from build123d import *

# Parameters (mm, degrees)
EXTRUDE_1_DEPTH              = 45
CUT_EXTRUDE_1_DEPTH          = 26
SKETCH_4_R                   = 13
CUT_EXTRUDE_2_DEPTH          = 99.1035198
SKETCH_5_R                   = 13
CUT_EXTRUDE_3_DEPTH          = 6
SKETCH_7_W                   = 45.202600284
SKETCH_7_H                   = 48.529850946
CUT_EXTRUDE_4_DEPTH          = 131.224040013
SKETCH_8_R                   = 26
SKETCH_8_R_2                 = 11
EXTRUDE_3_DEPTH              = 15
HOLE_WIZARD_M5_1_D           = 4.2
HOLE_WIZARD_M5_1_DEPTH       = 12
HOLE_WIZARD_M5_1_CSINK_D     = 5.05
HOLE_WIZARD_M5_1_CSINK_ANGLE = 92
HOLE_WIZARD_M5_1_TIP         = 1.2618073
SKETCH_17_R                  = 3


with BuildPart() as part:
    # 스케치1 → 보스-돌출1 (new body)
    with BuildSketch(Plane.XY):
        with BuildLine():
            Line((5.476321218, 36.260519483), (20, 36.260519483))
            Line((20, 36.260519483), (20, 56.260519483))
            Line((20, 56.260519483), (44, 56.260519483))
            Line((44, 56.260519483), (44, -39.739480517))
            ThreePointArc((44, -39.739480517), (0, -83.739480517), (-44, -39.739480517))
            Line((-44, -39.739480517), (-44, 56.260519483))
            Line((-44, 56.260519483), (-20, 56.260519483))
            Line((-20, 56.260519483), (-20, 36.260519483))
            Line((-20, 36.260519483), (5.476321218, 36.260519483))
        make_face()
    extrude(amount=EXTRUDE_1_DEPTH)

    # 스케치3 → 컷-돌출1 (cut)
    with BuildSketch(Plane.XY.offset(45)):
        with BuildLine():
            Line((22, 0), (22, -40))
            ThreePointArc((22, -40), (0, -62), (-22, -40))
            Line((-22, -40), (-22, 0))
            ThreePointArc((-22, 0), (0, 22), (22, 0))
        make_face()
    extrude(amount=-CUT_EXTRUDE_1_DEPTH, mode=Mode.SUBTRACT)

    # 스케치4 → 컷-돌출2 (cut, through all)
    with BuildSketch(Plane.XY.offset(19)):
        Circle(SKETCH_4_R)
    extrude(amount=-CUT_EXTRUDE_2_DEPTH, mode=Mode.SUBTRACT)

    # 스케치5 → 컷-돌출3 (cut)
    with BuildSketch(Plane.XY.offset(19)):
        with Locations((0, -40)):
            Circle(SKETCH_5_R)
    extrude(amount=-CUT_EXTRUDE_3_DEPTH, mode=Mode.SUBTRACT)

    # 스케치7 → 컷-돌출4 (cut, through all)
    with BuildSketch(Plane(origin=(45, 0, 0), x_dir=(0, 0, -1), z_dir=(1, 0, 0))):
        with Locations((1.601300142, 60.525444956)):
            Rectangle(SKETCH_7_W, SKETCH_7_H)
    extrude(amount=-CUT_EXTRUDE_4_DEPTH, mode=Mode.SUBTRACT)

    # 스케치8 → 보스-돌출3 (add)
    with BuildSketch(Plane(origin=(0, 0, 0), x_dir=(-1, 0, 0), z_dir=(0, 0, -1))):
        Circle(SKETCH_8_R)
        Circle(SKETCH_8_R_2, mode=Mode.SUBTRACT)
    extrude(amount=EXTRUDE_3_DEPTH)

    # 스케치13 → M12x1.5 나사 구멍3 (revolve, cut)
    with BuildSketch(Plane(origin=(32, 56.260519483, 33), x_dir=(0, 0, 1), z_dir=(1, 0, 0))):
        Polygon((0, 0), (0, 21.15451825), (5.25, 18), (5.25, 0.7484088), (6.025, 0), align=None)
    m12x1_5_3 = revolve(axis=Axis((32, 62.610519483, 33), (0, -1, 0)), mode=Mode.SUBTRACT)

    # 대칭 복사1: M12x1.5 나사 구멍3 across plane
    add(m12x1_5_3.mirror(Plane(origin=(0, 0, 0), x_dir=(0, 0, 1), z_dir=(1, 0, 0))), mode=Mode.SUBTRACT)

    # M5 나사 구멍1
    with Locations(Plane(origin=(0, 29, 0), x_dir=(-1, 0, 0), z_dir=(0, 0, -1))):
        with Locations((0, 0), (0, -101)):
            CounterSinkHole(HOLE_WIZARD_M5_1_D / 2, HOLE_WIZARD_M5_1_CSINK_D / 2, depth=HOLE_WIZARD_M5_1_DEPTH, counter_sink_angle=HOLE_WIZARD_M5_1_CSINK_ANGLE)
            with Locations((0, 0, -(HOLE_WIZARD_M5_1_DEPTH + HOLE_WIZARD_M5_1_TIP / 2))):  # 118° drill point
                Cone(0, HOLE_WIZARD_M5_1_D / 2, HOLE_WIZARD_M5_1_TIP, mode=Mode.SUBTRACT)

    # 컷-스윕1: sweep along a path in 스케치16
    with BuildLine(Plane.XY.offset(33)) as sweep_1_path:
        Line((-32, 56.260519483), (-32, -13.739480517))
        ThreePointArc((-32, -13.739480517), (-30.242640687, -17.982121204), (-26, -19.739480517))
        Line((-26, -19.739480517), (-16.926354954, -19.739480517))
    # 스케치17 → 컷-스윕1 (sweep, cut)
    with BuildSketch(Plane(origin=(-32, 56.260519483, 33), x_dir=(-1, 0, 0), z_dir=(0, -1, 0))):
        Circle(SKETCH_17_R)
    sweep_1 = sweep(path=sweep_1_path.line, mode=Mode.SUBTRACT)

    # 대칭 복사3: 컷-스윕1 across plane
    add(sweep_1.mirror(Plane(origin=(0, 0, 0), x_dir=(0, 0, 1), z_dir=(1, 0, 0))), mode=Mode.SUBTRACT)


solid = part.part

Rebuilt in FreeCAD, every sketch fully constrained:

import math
import FreeCAD as App
import Part
import Sketcher

V = App.Vector
Q = App.Units.Quantity


def add_polygon(sketch, points):
    """Adds a closed chain of lines whose ends are joined by coincident constraints."""
    first, n = sketch.GeometryCount, len(points)
    for a, b in zip(points, points[1:] + points[:1]):
        sketch.addGeometry(Part.LineSegment(App.Vector(*a, 0), App.Vector(*b, 0)), False)
    for i in range(n):
        sketch.addConstraint(Sketcher.Constraint("Coincident", first + i, 2, first + (i + 1) % n, 1))

doc = App.newDocument("Part")
body = doc.addObject("PartDesign::Body", "Body")

sketch1 = body.newObject("Sketcher::SketchObject", "Sketch")
sketch1.AttachmentSupport = (doc.getObject("XY_Plane"), [""])
sketch1.MapMode = "FlatFace"
sketch1.addGeometry(Part.LineSegment(V(20, 56, 0), V(20, 36, 0)), False)
sketch1.addGeometry(Part.LineSegment(V(20, 36, 0), V(-20, 36, 0)), False)
sketch1.addGeometry(Part.LineSegment(V(-20, 36, 0), V(-20, 56, 0)), False)
sketch1.addGeometry(Part.LineSegment(V(-20, 56, 0), V(-44, 56, 0)), False)
sketch1.addGeometry(Part.LineSegment(V(-44, 56, 0), V(-44, -40, 0)), False)
sketch1.addGeometry(Part.ArcOfCircle(Part.Circle(V(0, -40, 0), V(0, 0, 1), 44), math.radians(180), math.radians(360)), False)
sketch1.addGeometry(Part.LineSegment(V(44, -40, 0), V(44, 56, 0)), False)
sketch1.addGeometry(Part.LineSegment(V(44, 56, 0), V(20, 56, 0)), False)
sketch1.addConstraint(Sketcher.Constraint("Coincident", 0, 2, 1, 1))
sketch1.addConstraint(Sketcher.Constraint("Coincident", 1, 2, 2, 1))
sketch1.addConstraint(Sketcher.Constraint("Coincident", 2, 2, 3, 1))
sketch1.addConstraint(Sketcher.Constraint("Coincident", 3, 2, 4, 1))
sketch1.addConstraint(Sketcher.Constraint("Tangent", 4, 2, 5, 1))
sketch1.addConstraint(Sketcher.Constraint("Tangent", 5, 2, 6, 1))
sketch1.addConstraint(Sketcher.Constraint("Coincident", 6, 2, 7, 1))
sketch1.addConstraint(Sketcher.Constraint("Coincident", 7, 2, 0, 1))
sketch1.addConstraint(Sketcher.Constraint("Vertical", 0))
sketch1.addConstraint(Sketcher.Constraint("Horizontal", 1))
sketch1.addConstraint(Sketcher.Constraint("Vertical", 2))
sketch1.addConstraint(Sketcher.Constraint("Horizontal", 3))
sketch1.addConstraint(Sketcher.Constraint("Vertical", 4))
sketch1.addConstraint(Sketcher.Constraint("Vertical", 6))
sketch1.addConstraint(Sketcher.Constraint("Horizontal", 7))
sketch1.addConstraint(Sketcher.Constraint("Symmetric", 3, 2, 6, 2, -2))
sketch1.addConstraint(Sketcher.Constraint("Equal", 3, 7))
sketch1.addConstraint(Sketcher.Constraint("Radius", 5, 44.0))
sketch1.addConstraint(Sketcher.Constraint("DistanceX", 1, 2, 1, 1, 40.0))
sketch1.addConstraint(Sketcher.Constraint("DistanceY", 0, 2, 0, 1, 20.0))
sketch1.addConstraint(Sketcher.Constraint("DistanceY", 4, 2, 4, 1, 96.0))
sketch1.addConstraint(Sketcher.Constraint("DistanceY", 5, 3, -1, 1, 39.739481))
pad1 = body.newObject("PartDesign::Pad", "Pad")
pad1.Profile = sketch1
pad1.Length = 45

sketch2 = body.newObject("Sketcher::SketchObject", "Sketch001")
sketch2.AttachmentSupport = (doc.getObject("XY_Plane"), [""])
sketch2.MapMode = "FlatFace"
sketch2.AttachmentOffset = App.Placement(V(0, 0, 45), App.Rotation())
sketch2.addGeometry(Part.LineSegment(V(22, -40, 0), V(22, 0, 0)), False)
sketch2.addGeometry(Part.ArcOfCircle(Part.Circle(V(0, 0, 0), V(0, 0, 1), 22), math.radians(0), math.radians(180)), False)
sketch2.addGeometry(Part.LineSegment(V(-22, 0, 0), V(-22, -40, 0)), False)
sketch2.addGeometry(Part.ArcOfCircle(Part.Circle(V(0, -40, 0), V(0, 0, 1), 22), math.radians(180), math.radians(360)), False)
sketch2.addConstraint(Sketcher.Constraint("Tangent", 0, 2, 1, 1))
sketch2.addConstraint(Sketcher.Constraint("Tangent", 1, 2, 2, 1))
sketch2.addConstraint(Sketcher.Constraint("Tangent", 2, 2, 3, 1))
sketch2.addConstraint(Sketcher.Constraint("Tangent", 3, 2, 0, 1))
sketch2.addConstraint(Sketcher.Constraint("Vertical", 0))
sketch2.addConstraint(Sketcher.Constraint("Vertical", 2))
sketch2.addConstraint(Sketcher.Constraint("Coincident", 1, 3, -1, 1))
sketch2.addConstraint(Sketcher.Constraint("Radius", 1, 22.0))
sketch2.addConstraint(Sketcher.Constraint("DistanceY", 0, 1, 0, 2, 40.0))
pocket1 = body.newObject("PartDesign::Pocket", "Pocket")
pocket1.Profile = sketch2
pocket1.Length = 26

sketch3 = body.newObject("Sketcher::SketchObject", "Sketch002")
sketch3.AttachmentSupport = (doc.getObject("XY_Plane"), [""])
sketch3.MapMode = "FlatFace"
sketch3.AttachmentOffset = App.Placement(V(0, 0, 19), App.Rotation())
sketch3.addGeometry(Part.Circle(V(0, 0, 0), V(0, 0, 1), 13), False)
sketch3.addConstraint(Sketcher.Constraint("Coincident", 0, 3, -1, 1))
sketch3.addConstraint(Sketcher.Constraint("Diameter", 0, 26.0))
pocket2 = body.newObject("PartDesign::Pocket", "Pocket001")
pocket2.Profile = sketch3
pocket2.Type = "ThroughAll"

sketch4 = body.newObject("Sketcher::SketchObject", "Sketch003")
sketch4.AttachmentSupport = (doc.getObject("XY_Plane"), [""])
sketch4.MapMode = "FlatFace"
sketch4.AttachmentOffset = App.Placement(V(0, 0, 19), App.Rotation())
sketch4.addGeometry(Part.Circle(V(0, -40, 0), V(0, 0, 1), 13), False)
sketch4.addConstraint(Sketcher.Constraint("PointOnObject", 0, 3, -2))
sketch4.addConstraint(Sketcher.Constraint("Diameter", 0, 26.0))
sketch4.addConstraint(Sketcher.Constraint("DistanceY", 0, 3, -1, 1, 40.0))
pocket3 = body.newObject("PartDesign::Pocket", "Pocket002")
pocket3.Profile = sketch4
pocket3.Length = 6

sketch5 = body.newObject("Sketcher::SketchObject", "Sketch004")
sketch5.AttachmentSupport = (doc.getObject("YZ_Plane"), [""])
sketch5.MapMode = "FlatFace"
sketch5.AttachmentOffset = App.Placement(V(0, 0, 45), App.Rotation())
add_polygon(sketch5, [(85, 21), (36, 21), (36, -24), (85, -24)])
sketch5.addConstraint(Sketcher.Constraint("Horizontal", 0))
sketch5.addConstraint(Sketcher.Constraint("Vertical", 1))
sketch5.addConstraint(Sketcher.Constraint("Horizontal", 2))
sketch5.addConstraint(Sketcher.Constraint("Vertical", 3))
sketch5.addConstraint(Sketcher.Constraint("DistanceY", -1, 1, 0, 2, 21.0))
sketch5.addConstraint(Sketcher.Constraint("DistanceY", 1, 2, 1, 1, 45.2026))
sketch5.addConstraint(Sketcher.Constraint("DistanceX", 0, 2, 0, 1, 48.529851))
sketch5.addConstraint(Sketcher.Constraint("DistanceX", -1, 1, 0, 2, 36.260519))
pocket4 = body.newObject("PartDesign::Pocket", "Pocket003")
pocket4.Profile = sketch5
pocket4.Type = "ThroughAll"

sketch6 = body.newObject("Sketcher::SketchObject", "Sketch005")
sketch6.AttachmentSupport = (doc.getObject("XY_Plane"), [""])
sketch6.MapMode = "FlatFace"
sketch6.addGeometry(Part.Circle(V(0, 0, 0), V(0, 0, 1), 26), False)
sketch6.addGeometry(Part.Circle(V(0, 0, 0), V(0, 0, 1), 11), False)
sketch6.addConstraint(Sketcher.Constraint("Coincident", 0, 3, -1, 1))
sketch6.addConstraint(Sketcher.Constraint("Coincident", 1, 3, -1, 1))
sketch6.addConstraint(Sketcher.Constraint("Diameter", 0, 52.0))
sketch6.addConstraint(Sketcher.Constraint("Diameter", 1, 22.0))
pad2 = body.newObject("PartDesign::Pad", "Pad001")
pad2.Profile = sketch6
pad2.Length = 15
pad2.Reversed = True

sketch7 = body.newObject("Sketcher::SketchObject", "Sketch006")
sketch7.AttachmentSupport = (doc.getObject("YZ_Plane"), [""])
sketch7.MapMode = "FlatFace"
sketch7.AttachmentOffset = App.Placement(V(0, 0, 32), App.Rotation())
add_polygon(sketch7, [(35.1, 33), (56.3, 33), (56.3, 39), (55.5, 38.2), (38.3, 38.2)])
sketch7.addGeometry(Part.LineSegment(V(56.3, 33, 0), V(35.1, 33, 0)), True)
sketch7.addConstraint(Sketcher.Constraint("Horizontal", 0))
sketch7.addConstraint(Sketcher.Constraint("Vertical", 1))
sketch7.addConstraint(Sketcher.Constraint("Horizontal", 3))
sketch7.addConstraint(Sketcher.Constraint("Horizontal", 5))
sketch7.addConstraint(Sketcher.Constraint("Coincident", 5, 1, 0, 2))
sketch7.addConstraint(Sketcher.Constraint("Equal", 0, 5))
sketch7.addConstraint(Sketcher.Constraint("Angle", 2, Q("-134 deg")))
sketch7.addConstraint(Sketcher.Constraint("Angle", 4, Q("-121 deg")))
sketch7.addConstraint(Sketcher.Constraint("DistanceY", -1, 1, 0, 2, 33.0))
sketch7.addConstraint(Sketcher.Constraint("DistanceX", 3, 2, 1, 2, 18.0))
sketch7.addConstraint(Sketcher.Constraint("DistanceY", 1, 1, 1, 2, 6.025))
sketch7.addConstraint(Sketcher.Constraint("DistanceY", -1, 1, 2, 2, 38.25))
sketch7.addConstraint(Sketcher.Constraint("DistanceX", -1, 1, 4, 2, 35.106001))
groove = body.newObject("PartDesign::Groove", "Groove")
groove.Profile = sketch7
groove.ReferenceAxis = (sketch7, ["Axis0"])
groove.Angle = 360
doc.recompute()

mirrored = body.newObject("PartDesign::Mirrored", "Mirrored")
mirrored.Originals = [groove]
mirrored.MirrorPlane = (doc.getObject("YZ_Plane"), [""])
body.Tip = mirrored

sketch8 = body.newObject("Sketcher::SketchObject", "Sketch007")
sketch8.AttachmentSupport = (doc.getObject("XY_Plane"), [""])
sketch8.MapMode = "FlatFace"
sketch8.addGeometry(Part.Circle(V(0, 29, 0), V(0, 0, 1), 2.1), False)
sketch8.addGeometry(Part.Circle(V(0, -72, 0), V(0, 0, 1), 2.1), False)
sketch8.addConstraint(Sketcher.Constraint("Equal", 0, 1))
sketch8.addConstraint(Sketcher.Constraint("PointOnObject", 0, 3, -2))
sketch8.addConstraint(Sketcher.Constraint("PointOnObject", 1, 3, -2))
sketch8.addConstraint(Sketcher.Constraint("Diameter", 0, 4.2))
sketch8.addConstraint(Sketcher.Constraint("DistanceY", -1, 1, 0, 3, 29.0))
sketch8.addConstraint(Sketcher.Constraint("DistanceY", 1, 3, -1, 1, 72.0))
doc.recompute()
hole = body.newObject("PartDesign::Hole", "Hole")
hole.Profile = sketch8
hole.ThreadType = "None"
hole.Diameter = 4.2
hole.DepthType = "Dimension"
hole.Depth = 12
hole.DrillPoint = "Angled"
hole.DrillPointAngle = 118
hole.HoleCutType = "Countersink"
hole.HoleCutDiameter = 5.05
hole.HoleCutCountersinkAngle = 92
hole.Reversed = True

sketch9 = body.newObject("Sketcher::SketchObject", "Sketch008")
sketch9.AttachmentSupport = (doc.getObject("XZ_Plane"), [""])
sketch9.MapMode = "FlatFace"
sketch9.AttachmentOffset = App.Placement(V(0, 0, -56.260519), App.Rotation())
sketch9.addGeometry(Part.Circle(V(-32, 33, 0), V(0, 0, 1), 3), False)
sketch9.addConstraint(Sketcher.Constraint("Diameter", 0, 6.0))
sketch9.addConstraint(Sketcher.Constraint("DistanceX", 0, 3, -1, 1, 32.0))
sketch9.addConstraint(Sketcher.Constraint("DistanceY", -1, 1, 0, 3, 33.0))

sketch10 = body.newObject("Sketcher::SketchObject", "Sketch009")
sketch10.AttachmentSupport = (doc.getObject("XY_Plane"), [""])
sketch10.MapMode = "FlatFace"
sketch10.AttachmentOffset = App.Placement(V(0, 0, 33), App.Rotation())
sketch10.addGeometry(Part.LineSegment(V(-32, 56, 0), V(-32, -14, 0)), False)
sketch10.addGeometry(Part.ArcOfCircle(Part.Circle(V(-26, -14, 0), V(0, 0, 1), 6), math.radians(180), math.radians(270)), False)
sketch10.addGeometry(Part.LineSegment(V(-26, -20, 0), V(-17, -20, 0)), False)
sketch10.addConstraint(Sketcher.Constraint("Tangent", 0, 2, 1, 1))
sketch10.addConstraint(Sketcher.Constraint("Tangent", 1, 2, 2, 1))
sketch10.addConstraint(Sketcher.Constraint("Vertical", 0))
sketch10.addConstraint(Sketcher.Constraint("Horizontal", 2))
sketch10.addConstraint(Sketcher.Constraint("Radius", 1, 6.0))
sketch10.addConstraint(Sketcher.Constraint("DistanceY", 0, 2, 0, 1, 70.0))
sketch10.addConstraint(Sketcher.Constraint("DistanceX", 1, 3, -1, 1, 26.0))
sketch10.addConstraint(Sketcher.Constraint("DistanceX", 2, 1, 2, 2, 9.073645))
sketch10.addConstraint(Sketcher.Constraint("DistanceY", 1, 3, -1, 1, 13.739481))
doc.recompute()

subtractivepipe = body.newObject("PartDesign::SubtractivePipe", "SubtractivePipe")
subtractivepipe.Profile = sketch9
subtractivepipe.Spine = (sketch10, ["Edge1", "Edge2", "Edge3"])
doc.recompute()

mirrored2 = body.newObject("PartDesign::Mirrored", "Mirrored001")
mirrored2.Originals = [subtractivepipe]
mirrored2.MirrorPlane = (doc.getObject("YZ_Plane"), [""])
body.Tip = mirrored2

doc.recompute()
